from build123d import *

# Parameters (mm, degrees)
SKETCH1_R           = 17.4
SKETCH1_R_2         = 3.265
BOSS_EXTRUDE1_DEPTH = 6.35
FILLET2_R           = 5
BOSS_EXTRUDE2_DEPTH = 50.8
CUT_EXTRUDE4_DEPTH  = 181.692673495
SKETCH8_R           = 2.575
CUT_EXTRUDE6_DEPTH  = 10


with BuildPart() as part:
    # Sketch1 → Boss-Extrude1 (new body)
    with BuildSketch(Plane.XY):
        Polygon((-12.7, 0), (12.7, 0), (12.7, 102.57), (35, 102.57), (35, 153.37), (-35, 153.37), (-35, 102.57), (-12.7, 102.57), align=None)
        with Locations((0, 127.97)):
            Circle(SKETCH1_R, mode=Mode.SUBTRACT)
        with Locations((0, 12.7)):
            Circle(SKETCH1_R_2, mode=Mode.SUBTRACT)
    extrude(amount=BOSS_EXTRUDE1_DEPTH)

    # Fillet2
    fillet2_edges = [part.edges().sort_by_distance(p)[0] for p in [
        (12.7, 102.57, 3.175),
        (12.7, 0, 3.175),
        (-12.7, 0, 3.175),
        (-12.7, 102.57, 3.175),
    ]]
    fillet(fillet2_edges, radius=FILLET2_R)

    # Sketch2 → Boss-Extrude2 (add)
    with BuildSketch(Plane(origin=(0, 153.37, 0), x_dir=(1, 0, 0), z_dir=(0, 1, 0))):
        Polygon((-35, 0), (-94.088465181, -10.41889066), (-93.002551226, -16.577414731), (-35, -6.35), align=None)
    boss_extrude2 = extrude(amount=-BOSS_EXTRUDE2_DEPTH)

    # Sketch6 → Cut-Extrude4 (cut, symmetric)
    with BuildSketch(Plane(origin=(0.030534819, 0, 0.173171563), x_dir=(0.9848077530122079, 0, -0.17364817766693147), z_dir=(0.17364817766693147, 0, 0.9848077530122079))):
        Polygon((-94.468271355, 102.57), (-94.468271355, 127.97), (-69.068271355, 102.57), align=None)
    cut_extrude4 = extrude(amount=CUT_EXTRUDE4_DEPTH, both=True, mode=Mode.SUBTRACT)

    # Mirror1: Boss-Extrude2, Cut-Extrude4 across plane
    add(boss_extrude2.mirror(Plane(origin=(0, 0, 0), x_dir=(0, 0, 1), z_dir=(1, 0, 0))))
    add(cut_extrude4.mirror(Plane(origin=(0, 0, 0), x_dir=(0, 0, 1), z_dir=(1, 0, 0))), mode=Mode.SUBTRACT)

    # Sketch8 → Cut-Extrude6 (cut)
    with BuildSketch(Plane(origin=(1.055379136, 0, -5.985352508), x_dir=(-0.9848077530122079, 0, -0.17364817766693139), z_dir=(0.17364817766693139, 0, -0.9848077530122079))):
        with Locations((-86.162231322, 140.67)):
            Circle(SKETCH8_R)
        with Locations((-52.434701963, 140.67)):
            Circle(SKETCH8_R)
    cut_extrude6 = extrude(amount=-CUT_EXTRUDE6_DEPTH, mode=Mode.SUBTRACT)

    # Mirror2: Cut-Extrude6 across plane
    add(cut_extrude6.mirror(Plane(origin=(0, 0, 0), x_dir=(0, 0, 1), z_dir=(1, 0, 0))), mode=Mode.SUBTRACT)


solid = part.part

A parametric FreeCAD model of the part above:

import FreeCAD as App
import Part
import Sketcher
Q = App.Units.Quantity


def edges_at(feature, points):
    """Names of the edges that pass closest to the given points."""
    edges = feature.Shape.Edges
    near = lambda p: min(range(len(edges)), key=lambda i: edges[i].distToShape(Part.Vertex(*p))[0])
    return sorted({f"Edge{near(p) + 1}" for p in points})

doc = App.newDocument("Part")
body = doc.addObject("PartDesign::Body", "Body")

# Sketch on XY plane
sketch1 = body.newObject("Sketcher::SketchObject", "Sketch")
sketch1.AttachmentSupport = (doc.getObject("XY_Plane"), [""])
sketch1.MapMode = "FlatFace"
sketch1.addGeometry(Part.LineSegment(App.Vector(-12.7, 0, 0), App.Vector(12.7, 0, 0)), False)
sketch1.addGeometry(Part.LineSegment(App.Vector(12.7, 0, 0), App.Vector(12.7, 102.6, 0)), False)
sketch1.addGeometry(Part.LineSegment(App.Vector(12.7, 102.6, 0), App.Vector(35, 102.6, 0)), False)
sketch1.addGeometry(Part.LineSegment(App.Vector(35, 102.6, 0), App.Vector(35, 153.4, 0)), False)
sketch1.addGeometry(Part.LineSegment(App.Vector(35, 153.4, 0), App.Vector(-35, 153.4, 0)), False)
sketch1.addGeometry(Part.LineSegment(App.Vector(-35, 153.4, 0), App.Vector(-35, 102.6, 0)), False)
sketch1.addGeometry(Part.LineSegment(App.Vector(-35, 102.6, 0), App.Vector(-12.7, 102.6, 0)), False)
sketch1.addGeometry(Part.LineSegment(App.Vector(-12.7, 102.6, 0), App.Vector(-12.7, 0, 0)), False)
sketch1.addGeometry(Part.Circle(App.Vector(0, 12.7, 0), App.Vector(0, 0, 1), 3.3), False)
sketch1.addGeometry(Part.Circle(App.Vector(0, 128, 0), App.Vector(0, 0, 1), 17.4), False)
sketch1.addConstraint(Sketcher.Constraint("Coincident", 0, 2, 1, 1))
sketch1.addConstraint(Sketcher.Constraint("Coincident", 1, 2, 2, 1))
sketch1.addConstraint(Sketcher.Constraint("Coincident", 2, 2, 3, 1))
sketch1.addConstraint(Sketcher.Constraint("Coincident", 3, 2, 4, 1))
sketch1.addConstraint(Sketcher.Constraint("Coincident", 4, 2, 5, 1))
sketch1.addConstraint(Sketcher.Constraint("Coincident", 5, 2, 6, 1))
sketch1.addConstraint(Sketcher.Constraint("Coincident", 6, 2, 7, 1))
sketch1.addConstraint(Sketcher.Constraint("Coincident", 7, 2, 0, 1))
sketch1.addConstraint(Sketcher.Constraint("Horizontal", 0))
sketch1.addConstraint(Sketcher.Constraint("Vertical", 1))
sketch1.addConstraint(Sketcher.Constraint("Horizontal", 2))
sketch1.addConstraint(Sketcher.Constraint("Vertical", 3))
sketch1.addConstraint(Sketcher.Constraint("Horizontal", 4))
sketch1.addConstraint(Sketcher.Constraint("Vertical", 5))
sketch1.addConstraint(Sketcher.Constraint("Horizontal", 6))
sketch1.addConstraint(Sketcher.Constraint("Vertical", 7))
sketch1.addConstraint(Sketcher.Constraint("Symmetric", 0, 2, 7, 2, -1, 1))
sketch1.addConstraint(Sketcher.Constraint("Symmetric", 2, 2, 5, 2, -2))
sketch1.addConstraint(Sketcher.Constraint("PointOnObject", 8, 3, -2))
sketch1.addConstraint(Sketcher.Constraint("PointOnObject", 9, 3, -2))
sketch1.addConstraint(Sketcher.Constraint("Diameter", 9, Q("34.8 mm")))
sketch1.addConstraint(Sketcher.Constraint("Diameter", 8, Q("6.53 mm")))
sketch1.addConstraint(Sketcher.Constraint("DistanceX", 4, 2, 4, 1, Q("70 mm")))
sketch1.addConstraint(Sketcher.Constraint("DistanceX", 0, 1, 0, 2, Q("25.4 mm")))
sketch1.addConstraint(Sketcher.Constraint("DistanceY", 3, 1, 3, 2, Q("50.8 mm")))
sketch1.addConstraint(Sketcher.Constraint("DistanceY", 1, 1, 1, 2, Q("102.57 mm")))
sketch1.addConstraint(Sketcher.Constraint("DistanceY", -1, 1, 8, 3, Q("12.7 mm")))
sketch1.addConstraint(Sketcher.Constraint("DistanceY", 1, 2, 9, 3, Q("25.4 mm")))
pad1 = body.newObject("PartDesign::Pad", "Pad")
pad1.Profile = sketch1
pad1.Length = 6.35
doc.recompute()

fillet = body.newObject("PartDesign::Fillet", "Fillet")
fillet.Base = (pad1, edges_at(pad1, [
    (12.7, 102.57, 3.175),
    (12.7, 0, 3.175),
    (-12.7, 0, 3.175),
    (-12.7, 102.57, 3.175),
]))
fillet.Radius = 5

# Sketch on XZ plane
sketch2 = body.newObject("Sketcher::SketchObject", "Sketch001")
sketch2.AttachmentSupport = (doc.getObject("XZ_Plane"), [""])
sketch2.MapMode = "FlatFace"
sketch2.AttachmentOffset = App.Placement(App.Vector(0, 0, -153.37), App.Rotation())
sketch2.addGeometry(Part.LineSegment(App.Vector(-35, 0, 0), App.Vector(-94, 10, 0)), False)
sketch2.addGeometry(Part.LineSegment(App.Vector(-94, 10, 0), App.Vector(-93, 17, 0)), False)
sketch2.addGeometry(Part.LineSegment(App.Vector(-93, 17, 0), App.Vector(-35, 6, 0)), False)
sketch2.addGeometry(Part.LineSegment(App.Vector(-35, 6, 0), App.Vector(-35, 0, 0)), False)
sketch2.addConstraint(Sketcher.Constraint("Coincident", 0, 2, 1, 1))
sketch2.addConstraint(Sketcher.Constraint("Coincident", 1, 2, 2, 1))
sketch2.addConstraint(Sketcher.Constraint("Coincident", 2, 2, 3, 1))
sketch2.addConstraint(Sketcher.Constraint("Coincident", 3, 2, 0, 1))
sketch2.addConstraint(Sketcher.Constraint("Vertical", 3))
sketch2.addConstraint(Sketcher.Constraint("PointOnObject", 3, 2, -1))
sketch2.addConstraint(Sketcher.Constraint("Perpendicular", 0, 1))
sketch2.addConstraint(Sketcher.Constraint("Perpendicular", 1, 2))
sketch2.addConstraint(Sketcher.Constraint("Angle", 0, Q("170 deg")))
sketch2.addConstraint(Sketcher.Constraint("Distance", 0, Q("60 mm")))
sketch2.addConstraint(Sketcher.Constraint("DistanceX", 2, 2, -1, 1, Q("35 mm")))
sketch2.addConstraint(Sketcher.Constraint("DistanceY", 3, 2, 3, 1, Q("6.35 mm")))
pad2 = body.newObject("PartDesign::Pad", "Pad001")
pad2.Profile = sketch2
pad2.Length = 50.8

# Sketch on an angled plane
sketch3 = body.newObject("Sketcher::SketchObject", "Sketch002")
sketch3.Placement = App.Placement(App.Vector(0.030535, 0, 0.173172), App.Rotation(App.Vector(0.984807753, 0, -0.173648178), App.Vector(0, 1, 0), App.Vector(0.173648178, 0, 0.984807753), "ZXY"))
sketch3.addGeometry(Part.LineSegment(App.Vector(-94, 128, 0), App.Vector(-94, 103, 0)), False)
sketch3.addGeometry(Part.LineSegment(App.Vector(-94, 103, 0), App.Vector(-69, 103, 0)), False)
sketch3.addGeometry(Part.LineSegment(App.Vector(-69, 103, 0), App.Vector(-94, 128, 0)), False)
sketch3.addConstraint(Sketcher.Constraint("Coincident", 0, 2, 1, 1))
sketch3.addConstraint(Sketcher.Constraint("Coincident", 1, 2, 2, 1))
sketch3.addConstraint(Sketcher.Constraint("Coincident", 2, 2, 0, 1))
sketch3.addConstraint(Sketcher.Constraint("Vertical", 0))
sketch3.addConstraint(Sketcher.Constraint("Horizontal", 1))
sketch3.addConstraint(Sketcher.Constraint("Equal", 1, 0))
sketch3.addConstraint(Sketcher.Constraint("DistanceX", 1, 1, 1, 2, Q("25.4 mm")))
sketch3.addConstraint(Sketcher.Constraint("DistanceY", -1, 1, 0, 2, Q("102.57 mm")))
sketch3.addConstraint(Sketcher.Constraint("DistanceX", 0, 2, -1, 1, Q("94.468271 mm")))
pocket1 = body.newObject("PartDesign::Pocket", "Pocket")
pocket1.Profile = sketch3
pocket1.Length = 363.385347
pocket1.Midplane = True
doc.recompute()

mirrored = body.newObject("PartDesign::Mirrored", "Mirrored")
mirrored.Originals = [pad2, pocket1]
mirrored.MirrorPlane = (doc.getObject("YZ_Plane"), [""])
body.Tip = mirrored

# Sketch on an angled plane
sketch4 = body.newObject("Sketcher::SketchObject", "Sketch003")
sketch4.Placement = App.Placement(App.Vector(1.055379, 0, -5.985353), App.Rotation(App.Vector(-0.984807753, 0, -0.173648178), App.Vector(0, 1, 0), App.Vector(0.173648178, 0, -0.984807753), "ZXY"))
sketch4.addGeometry(Part.Circle(App.Vector(-86.2, 140.7, 0), App.Vector(0, 0, 1), 2.6), False)
sketch4.addGeometry(Part.Circle(App.Vector(-52.4, 140.7, 0), App.Vector(0, 0, 1), 2.6), False)
sketch4.addConstraint(Sketcher.Constraint("Equal", 0, 1))
sketch4.addConstraint(Sketcher.Constraint("Horizontal", 0, 3, 1, 3))
sketch4.addConstraint(Sketcher.Constraint("Diameter", 0, Q("5.15 mm")))
sketch4.addConstraint(Sketcher.Constraint("DistanceY", -1, 1, 0, 3, Q("140.67 mm")))
sketch4.addConstraint(Sketcher.Constraint("DistanceX", 1, 3, -1, 1, Q("52.434702 mm")))
sketch4.addConstraint(Sketcher.Constraint("DistanceX", 0, 3, -1, 1, Q("86.162231 mm")))
pocket2 = body.newObject("PartDesign::Pocket", "Pocket001")
pocket2.Profile = sketch4
pocket2.Length = 10
doc.recompute()

mirrored2 = body.newObject("PartDesign::Mirrored", "Mirrored001")
mirrored2.Originals = [pocket2]
mirrored2.MirrorPlane = (doc.getObject("YZ_Plane"), [""])
body.Tip = mirrored2

doc.recompute()
